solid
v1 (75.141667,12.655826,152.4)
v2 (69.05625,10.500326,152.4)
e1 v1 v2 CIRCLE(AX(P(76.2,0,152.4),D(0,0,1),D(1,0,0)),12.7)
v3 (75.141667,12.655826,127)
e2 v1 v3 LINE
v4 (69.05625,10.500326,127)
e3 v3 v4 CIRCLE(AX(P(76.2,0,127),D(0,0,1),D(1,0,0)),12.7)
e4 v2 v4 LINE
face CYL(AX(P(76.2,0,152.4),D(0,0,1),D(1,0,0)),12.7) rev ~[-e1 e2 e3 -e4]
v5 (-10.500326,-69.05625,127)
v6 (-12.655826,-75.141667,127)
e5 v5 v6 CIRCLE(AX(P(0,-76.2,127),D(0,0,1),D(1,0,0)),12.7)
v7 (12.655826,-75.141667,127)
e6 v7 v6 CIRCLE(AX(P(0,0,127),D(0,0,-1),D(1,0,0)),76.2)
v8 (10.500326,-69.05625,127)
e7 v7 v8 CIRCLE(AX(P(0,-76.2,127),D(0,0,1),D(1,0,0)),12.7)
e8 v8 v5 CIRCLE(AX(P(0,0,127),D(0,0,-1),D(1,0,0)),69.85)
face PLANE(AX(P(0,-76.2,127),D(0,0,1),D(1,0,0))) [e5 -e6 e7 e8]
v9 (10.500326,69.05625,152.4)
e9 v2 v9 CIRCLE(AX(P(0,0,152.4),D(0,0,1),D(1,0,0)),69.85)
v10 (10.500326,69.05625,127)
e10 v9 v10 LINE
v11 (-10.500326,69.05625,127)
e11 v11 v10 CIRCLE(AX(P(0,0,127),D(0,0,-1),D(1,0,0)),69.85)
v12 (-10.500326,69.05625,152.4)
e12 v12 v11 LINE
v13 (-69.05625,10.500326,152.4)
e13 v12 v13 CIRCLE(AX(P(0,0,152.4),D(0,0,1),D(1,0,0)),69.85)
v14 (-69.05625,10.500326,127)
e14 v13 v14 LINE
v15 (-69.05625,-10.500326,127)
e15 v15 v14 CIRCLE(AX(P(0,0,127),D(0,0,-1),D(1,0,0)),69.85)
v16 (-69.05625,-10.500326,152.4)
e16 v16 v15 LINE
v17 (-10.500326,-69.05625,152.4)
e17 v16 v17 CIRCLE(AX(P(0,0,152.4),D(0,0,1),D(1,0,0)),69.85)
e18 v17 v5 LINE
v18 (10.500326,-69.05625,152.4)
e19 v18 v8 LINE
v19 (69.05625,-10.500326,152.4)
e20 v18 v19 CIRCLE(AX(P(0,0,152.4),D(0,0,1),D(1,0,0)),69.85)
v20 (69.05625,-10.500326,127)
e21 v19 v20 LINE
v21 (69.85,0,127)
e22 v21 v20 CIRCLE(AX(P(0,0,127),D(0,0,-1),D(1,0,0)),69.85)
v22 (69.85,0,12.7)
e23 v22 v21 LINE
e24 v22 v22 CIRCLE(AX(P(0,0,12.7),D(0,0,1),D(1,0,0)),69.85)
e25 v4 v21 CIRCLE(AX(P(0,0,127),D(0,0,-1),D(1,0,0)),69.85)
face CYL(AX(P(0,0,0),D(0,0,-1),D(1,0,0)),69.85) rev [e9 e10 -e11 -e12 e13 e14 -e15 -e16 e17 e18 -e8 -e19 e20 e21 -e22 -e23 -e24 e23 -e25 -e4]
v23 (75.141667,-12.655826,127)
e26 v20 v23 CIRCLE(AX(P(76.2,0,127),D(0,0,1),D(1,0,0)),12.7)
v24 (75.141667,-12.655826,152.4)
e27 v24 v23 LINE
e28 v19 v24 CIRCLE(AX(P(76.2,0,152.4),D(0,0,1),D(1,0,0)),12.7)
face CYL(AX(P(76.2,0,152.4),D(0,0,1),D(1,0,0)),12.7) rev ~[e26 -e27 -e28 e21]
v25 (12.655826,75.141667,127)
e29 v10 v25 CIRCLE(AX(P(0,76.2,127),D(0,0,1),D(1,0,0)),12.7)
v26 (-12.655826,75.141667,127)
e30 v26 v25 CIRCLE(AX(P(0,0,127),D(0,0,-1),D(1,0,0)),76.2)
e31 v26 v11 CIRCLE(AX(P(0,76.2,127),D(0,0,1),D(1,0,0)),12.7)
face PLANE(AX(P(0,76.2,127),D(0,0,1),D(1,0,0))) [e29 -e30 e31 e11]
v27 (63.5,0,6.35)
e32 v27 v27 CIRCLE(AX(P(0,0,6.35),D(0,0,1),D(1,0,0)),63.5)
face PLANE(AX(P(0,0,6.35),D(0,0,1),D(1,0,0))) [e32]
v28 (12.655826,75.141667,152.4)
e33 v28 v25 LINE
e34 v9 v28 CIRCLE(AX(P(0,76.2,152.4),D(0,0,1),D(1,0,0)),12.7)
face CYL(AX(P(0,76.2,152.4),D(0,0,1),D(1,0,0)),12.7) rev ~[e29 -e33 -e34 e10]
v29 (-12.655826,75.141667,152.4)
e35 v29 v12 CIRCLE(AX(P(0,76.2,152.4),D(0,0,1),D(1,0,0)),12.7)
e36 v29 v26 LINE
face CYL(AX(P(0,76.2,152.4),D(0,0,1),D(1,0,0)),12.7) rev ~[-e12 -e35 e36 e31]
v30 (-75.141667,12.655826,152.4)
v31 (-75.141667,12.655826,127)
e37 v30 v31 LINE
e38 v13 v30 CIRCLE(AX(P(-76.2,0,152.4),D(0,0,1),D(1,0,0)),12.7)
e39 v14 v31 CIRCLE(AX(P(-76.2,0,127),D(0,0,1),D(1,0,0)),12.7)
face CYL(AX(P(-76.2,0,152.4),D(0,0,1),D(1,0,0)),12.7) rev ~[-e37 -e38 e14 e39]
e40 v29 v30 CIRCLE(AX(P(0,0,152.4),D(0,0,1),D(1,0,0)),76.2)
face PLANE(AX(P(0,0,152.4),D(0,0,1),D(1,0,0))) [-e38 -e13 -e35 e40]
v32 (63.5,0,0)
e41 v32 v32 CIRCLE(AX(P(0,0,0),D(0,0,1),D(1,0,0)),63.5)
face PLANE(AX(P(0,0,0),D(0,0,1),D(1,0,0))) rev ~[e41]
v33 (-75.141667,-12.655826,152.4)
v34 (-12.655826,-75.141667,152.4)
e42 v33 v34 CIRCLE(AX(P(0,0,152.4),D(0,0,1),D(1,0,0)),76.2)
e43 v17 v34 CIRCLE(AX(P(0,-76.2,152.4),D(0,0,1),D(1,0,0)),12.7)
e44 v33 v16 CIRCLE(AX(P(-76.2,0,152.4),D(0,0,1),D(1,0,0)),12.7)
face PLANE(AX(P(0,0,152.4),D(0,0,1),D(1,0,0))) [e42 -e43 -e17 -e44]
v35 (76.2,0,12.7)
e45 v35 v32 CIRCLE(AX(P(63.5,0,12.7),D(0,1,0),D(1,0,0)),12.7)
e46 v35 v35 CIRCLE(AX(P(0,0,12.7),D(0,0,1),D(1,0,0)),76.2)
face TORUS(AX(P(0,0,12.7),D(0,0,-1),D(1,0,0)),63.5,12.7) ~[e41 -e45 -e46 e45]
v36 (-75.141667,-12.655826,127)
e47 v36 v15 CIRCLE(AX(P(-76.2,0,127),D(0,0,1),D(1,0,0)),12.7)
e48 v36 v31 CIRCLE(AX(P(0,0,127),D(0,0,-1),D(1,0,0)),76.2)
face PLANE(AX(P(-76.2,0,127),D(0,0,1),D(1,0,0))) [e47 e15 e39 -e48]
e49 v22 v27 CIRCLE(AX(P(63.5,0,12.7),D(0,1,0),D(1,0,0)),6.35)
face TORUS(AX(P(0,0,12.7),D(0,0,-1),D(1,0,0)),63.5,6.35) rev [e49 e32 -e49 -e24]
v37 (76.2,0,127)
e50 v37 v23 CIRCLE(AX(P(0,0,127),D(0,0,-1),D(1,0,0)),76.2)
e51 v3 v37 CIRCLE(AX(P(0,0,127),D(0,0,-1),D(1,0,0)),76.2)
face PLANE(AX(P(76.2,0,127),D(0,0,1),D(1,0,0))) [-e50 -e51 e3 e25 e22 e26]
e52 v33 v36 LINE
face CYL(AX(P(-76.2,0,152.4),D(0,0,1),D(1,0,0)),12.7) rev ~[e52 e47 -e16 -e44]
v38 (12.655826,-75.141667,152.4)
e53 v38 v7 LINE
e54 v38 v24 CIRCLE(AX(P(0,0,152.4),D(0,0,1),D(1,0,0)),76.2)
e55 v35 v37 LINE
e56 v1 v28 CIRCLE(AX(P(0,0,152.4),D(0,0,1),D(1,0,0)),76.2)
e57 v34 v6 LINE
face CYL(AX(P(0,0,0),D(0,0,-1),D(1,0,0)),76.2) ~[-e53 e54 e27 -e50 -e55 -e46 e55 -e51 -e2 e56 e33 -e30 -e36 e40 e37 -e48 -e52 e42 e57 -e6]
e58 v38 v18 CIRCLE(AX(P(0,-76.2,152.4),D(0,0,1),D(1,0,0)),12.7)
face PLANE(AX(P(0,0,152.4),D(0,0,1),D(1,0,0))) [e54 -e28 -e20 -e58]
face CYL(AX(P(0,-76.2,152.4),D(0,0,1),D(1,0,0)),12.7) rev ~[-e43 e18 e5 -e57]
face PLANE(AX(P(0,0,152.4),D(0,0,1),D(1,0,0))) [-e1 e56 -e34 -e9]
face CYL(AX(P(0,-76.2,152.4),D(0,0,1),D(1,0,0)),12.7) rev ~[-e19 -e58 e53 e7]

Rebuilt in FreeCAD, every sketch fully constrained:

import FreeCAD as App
import Part
import Sketcher
Q = App.Units.Quantity


def edges_at(feature, points):
    """Names of the edges that pass closest to the given points."""
    edges = feature.Shape.Edges
    near = lambda p: min(range(len(edges)), key=lambda i: edges[i].distToShape(Part.Vertex(*p))[0])
    return sorted({f"Edge{near(p) + 1}" for p in points})


def faces_at(feature, points):
    """Names of the faces that lie closest to the given points."""
    faces = feature.Shape.Faces
    near = lambda p: min(range(len(faces)), key=lambda i: faces[i].distToShape(Part.Vertex(*p))[0])
    return sorted({f"Face{near(p) + 1}" for p in points})

doc = App.newDocument("Part")
body = doc.addObject("PartDesign::Body", "Body")

sketch1 = body.newObject("Sketcher::SketchObject", "Sketch")
sketch1.AttachmentSupport = (doc.getObject("XY_Plane"), [""])
sketch1.MapMode = "FlatFace"
sketch1.addGeometry(Part.Circle(App.Vector(0, 0, 0), App.Vector(0, 0, 1), 76), False)
sketch1.addConstraint(Sketcher.Constraint("Coincident", 0, 3, -1, 1))
sketch1.addConstraint(Sketcher.Constraint("Diameter", 0, Q("6 in")))
pad1 = body.newObject("PartDesign::Pad", "Pad")
pad1.Profile = sketch1
pad1.Length = Q("6 in")
doc.recompute()

fillet = body.newObject("PartDesign::Fillet", "Fillet")
fillet.Base = (pad1, edges_at(pad1, [(-76.2, 0, 0)]))
fillet.Radius = Q("0.5 in")
doc.recompute()

thickness = body.newObject("PartDesign::Thickness", "Thickness")
thickness.Base = (fillet, faces_at(fillet, [(0, 0, 152.4)]))
thickness.Value = Q("0.25 in")
thickness.Reversed = True
thickness.Join = "Arc"

sketch2 = body.newObject("Sketcher::SketchObject", "Sketch001")
sketch2.AttachmentSupport = (doc.getObject("XY_Plane"), [""])
sketch2.MapMode = "FlatFace"
sketch2.AttachmentOffset = App.Placement(App.Vector(0, 0, 6 * 25.4), App.Rotation())
sketch2.addGeometry(Part.Circle(App.Vector(0, 76, 0), App.Vector(0, 0, 1), 13), False)
sketch2.addGeometry(Part.Circle(App.Vector(-76, 0, 0), App.Vector(0, 0, 1), 13), False)
sketch2.addGeometry(Part.Circle(App.Vector(0, -76, 0), App.Vector(0, 0, 1), 13), False)
sketch2.addGeometry(Part.Circle(App.Vector(76, 0, 0), App.Vector(0, 0, 1), 13), False)
sketch2.addConstraint(Sketcher.Constraint("Equal", 0, 1))
sketch2.addConstraint(Sketcher.Constraint("Equal", 1, 2))
sketch2.addConstraint(Sketcher.Constraint("Equal", 2, 3))
sketch2.addConstraint(Sketcher.Constraint("Symmetric", 0, 3, 2, 3, -1, 1))
sketch2.addConstraint(Sketcher.Constraint("Symmetric", 1, 3, 3, 3, -1, 1))
sketch2.addConstraint(Sketcher.Constraint("PointOnObject", 0, 3, -2))
sketch2.addConstraint(Sketcher.Constraint("PointOnObject", 1, 3, -1))
sketch2.addConstraint(Sketcher.Constraint("Diameter", 0, Q("1 in")))
sketch2.addConstraint(Sketcher.Constraint("DistanceY", -1, 1, 0, 3, Q("3 in")))
sketch2.addConstraint(Sketcher.Constraint("DistanceX", 1, 3, -1, 1, Q("3 in")))
pocket1 = body.newObject("PartDesign::Pocket", "Pocket")
pocket1.Profile = sketch2
pocket1.Length = Q("1 in")

doc.recompute()
